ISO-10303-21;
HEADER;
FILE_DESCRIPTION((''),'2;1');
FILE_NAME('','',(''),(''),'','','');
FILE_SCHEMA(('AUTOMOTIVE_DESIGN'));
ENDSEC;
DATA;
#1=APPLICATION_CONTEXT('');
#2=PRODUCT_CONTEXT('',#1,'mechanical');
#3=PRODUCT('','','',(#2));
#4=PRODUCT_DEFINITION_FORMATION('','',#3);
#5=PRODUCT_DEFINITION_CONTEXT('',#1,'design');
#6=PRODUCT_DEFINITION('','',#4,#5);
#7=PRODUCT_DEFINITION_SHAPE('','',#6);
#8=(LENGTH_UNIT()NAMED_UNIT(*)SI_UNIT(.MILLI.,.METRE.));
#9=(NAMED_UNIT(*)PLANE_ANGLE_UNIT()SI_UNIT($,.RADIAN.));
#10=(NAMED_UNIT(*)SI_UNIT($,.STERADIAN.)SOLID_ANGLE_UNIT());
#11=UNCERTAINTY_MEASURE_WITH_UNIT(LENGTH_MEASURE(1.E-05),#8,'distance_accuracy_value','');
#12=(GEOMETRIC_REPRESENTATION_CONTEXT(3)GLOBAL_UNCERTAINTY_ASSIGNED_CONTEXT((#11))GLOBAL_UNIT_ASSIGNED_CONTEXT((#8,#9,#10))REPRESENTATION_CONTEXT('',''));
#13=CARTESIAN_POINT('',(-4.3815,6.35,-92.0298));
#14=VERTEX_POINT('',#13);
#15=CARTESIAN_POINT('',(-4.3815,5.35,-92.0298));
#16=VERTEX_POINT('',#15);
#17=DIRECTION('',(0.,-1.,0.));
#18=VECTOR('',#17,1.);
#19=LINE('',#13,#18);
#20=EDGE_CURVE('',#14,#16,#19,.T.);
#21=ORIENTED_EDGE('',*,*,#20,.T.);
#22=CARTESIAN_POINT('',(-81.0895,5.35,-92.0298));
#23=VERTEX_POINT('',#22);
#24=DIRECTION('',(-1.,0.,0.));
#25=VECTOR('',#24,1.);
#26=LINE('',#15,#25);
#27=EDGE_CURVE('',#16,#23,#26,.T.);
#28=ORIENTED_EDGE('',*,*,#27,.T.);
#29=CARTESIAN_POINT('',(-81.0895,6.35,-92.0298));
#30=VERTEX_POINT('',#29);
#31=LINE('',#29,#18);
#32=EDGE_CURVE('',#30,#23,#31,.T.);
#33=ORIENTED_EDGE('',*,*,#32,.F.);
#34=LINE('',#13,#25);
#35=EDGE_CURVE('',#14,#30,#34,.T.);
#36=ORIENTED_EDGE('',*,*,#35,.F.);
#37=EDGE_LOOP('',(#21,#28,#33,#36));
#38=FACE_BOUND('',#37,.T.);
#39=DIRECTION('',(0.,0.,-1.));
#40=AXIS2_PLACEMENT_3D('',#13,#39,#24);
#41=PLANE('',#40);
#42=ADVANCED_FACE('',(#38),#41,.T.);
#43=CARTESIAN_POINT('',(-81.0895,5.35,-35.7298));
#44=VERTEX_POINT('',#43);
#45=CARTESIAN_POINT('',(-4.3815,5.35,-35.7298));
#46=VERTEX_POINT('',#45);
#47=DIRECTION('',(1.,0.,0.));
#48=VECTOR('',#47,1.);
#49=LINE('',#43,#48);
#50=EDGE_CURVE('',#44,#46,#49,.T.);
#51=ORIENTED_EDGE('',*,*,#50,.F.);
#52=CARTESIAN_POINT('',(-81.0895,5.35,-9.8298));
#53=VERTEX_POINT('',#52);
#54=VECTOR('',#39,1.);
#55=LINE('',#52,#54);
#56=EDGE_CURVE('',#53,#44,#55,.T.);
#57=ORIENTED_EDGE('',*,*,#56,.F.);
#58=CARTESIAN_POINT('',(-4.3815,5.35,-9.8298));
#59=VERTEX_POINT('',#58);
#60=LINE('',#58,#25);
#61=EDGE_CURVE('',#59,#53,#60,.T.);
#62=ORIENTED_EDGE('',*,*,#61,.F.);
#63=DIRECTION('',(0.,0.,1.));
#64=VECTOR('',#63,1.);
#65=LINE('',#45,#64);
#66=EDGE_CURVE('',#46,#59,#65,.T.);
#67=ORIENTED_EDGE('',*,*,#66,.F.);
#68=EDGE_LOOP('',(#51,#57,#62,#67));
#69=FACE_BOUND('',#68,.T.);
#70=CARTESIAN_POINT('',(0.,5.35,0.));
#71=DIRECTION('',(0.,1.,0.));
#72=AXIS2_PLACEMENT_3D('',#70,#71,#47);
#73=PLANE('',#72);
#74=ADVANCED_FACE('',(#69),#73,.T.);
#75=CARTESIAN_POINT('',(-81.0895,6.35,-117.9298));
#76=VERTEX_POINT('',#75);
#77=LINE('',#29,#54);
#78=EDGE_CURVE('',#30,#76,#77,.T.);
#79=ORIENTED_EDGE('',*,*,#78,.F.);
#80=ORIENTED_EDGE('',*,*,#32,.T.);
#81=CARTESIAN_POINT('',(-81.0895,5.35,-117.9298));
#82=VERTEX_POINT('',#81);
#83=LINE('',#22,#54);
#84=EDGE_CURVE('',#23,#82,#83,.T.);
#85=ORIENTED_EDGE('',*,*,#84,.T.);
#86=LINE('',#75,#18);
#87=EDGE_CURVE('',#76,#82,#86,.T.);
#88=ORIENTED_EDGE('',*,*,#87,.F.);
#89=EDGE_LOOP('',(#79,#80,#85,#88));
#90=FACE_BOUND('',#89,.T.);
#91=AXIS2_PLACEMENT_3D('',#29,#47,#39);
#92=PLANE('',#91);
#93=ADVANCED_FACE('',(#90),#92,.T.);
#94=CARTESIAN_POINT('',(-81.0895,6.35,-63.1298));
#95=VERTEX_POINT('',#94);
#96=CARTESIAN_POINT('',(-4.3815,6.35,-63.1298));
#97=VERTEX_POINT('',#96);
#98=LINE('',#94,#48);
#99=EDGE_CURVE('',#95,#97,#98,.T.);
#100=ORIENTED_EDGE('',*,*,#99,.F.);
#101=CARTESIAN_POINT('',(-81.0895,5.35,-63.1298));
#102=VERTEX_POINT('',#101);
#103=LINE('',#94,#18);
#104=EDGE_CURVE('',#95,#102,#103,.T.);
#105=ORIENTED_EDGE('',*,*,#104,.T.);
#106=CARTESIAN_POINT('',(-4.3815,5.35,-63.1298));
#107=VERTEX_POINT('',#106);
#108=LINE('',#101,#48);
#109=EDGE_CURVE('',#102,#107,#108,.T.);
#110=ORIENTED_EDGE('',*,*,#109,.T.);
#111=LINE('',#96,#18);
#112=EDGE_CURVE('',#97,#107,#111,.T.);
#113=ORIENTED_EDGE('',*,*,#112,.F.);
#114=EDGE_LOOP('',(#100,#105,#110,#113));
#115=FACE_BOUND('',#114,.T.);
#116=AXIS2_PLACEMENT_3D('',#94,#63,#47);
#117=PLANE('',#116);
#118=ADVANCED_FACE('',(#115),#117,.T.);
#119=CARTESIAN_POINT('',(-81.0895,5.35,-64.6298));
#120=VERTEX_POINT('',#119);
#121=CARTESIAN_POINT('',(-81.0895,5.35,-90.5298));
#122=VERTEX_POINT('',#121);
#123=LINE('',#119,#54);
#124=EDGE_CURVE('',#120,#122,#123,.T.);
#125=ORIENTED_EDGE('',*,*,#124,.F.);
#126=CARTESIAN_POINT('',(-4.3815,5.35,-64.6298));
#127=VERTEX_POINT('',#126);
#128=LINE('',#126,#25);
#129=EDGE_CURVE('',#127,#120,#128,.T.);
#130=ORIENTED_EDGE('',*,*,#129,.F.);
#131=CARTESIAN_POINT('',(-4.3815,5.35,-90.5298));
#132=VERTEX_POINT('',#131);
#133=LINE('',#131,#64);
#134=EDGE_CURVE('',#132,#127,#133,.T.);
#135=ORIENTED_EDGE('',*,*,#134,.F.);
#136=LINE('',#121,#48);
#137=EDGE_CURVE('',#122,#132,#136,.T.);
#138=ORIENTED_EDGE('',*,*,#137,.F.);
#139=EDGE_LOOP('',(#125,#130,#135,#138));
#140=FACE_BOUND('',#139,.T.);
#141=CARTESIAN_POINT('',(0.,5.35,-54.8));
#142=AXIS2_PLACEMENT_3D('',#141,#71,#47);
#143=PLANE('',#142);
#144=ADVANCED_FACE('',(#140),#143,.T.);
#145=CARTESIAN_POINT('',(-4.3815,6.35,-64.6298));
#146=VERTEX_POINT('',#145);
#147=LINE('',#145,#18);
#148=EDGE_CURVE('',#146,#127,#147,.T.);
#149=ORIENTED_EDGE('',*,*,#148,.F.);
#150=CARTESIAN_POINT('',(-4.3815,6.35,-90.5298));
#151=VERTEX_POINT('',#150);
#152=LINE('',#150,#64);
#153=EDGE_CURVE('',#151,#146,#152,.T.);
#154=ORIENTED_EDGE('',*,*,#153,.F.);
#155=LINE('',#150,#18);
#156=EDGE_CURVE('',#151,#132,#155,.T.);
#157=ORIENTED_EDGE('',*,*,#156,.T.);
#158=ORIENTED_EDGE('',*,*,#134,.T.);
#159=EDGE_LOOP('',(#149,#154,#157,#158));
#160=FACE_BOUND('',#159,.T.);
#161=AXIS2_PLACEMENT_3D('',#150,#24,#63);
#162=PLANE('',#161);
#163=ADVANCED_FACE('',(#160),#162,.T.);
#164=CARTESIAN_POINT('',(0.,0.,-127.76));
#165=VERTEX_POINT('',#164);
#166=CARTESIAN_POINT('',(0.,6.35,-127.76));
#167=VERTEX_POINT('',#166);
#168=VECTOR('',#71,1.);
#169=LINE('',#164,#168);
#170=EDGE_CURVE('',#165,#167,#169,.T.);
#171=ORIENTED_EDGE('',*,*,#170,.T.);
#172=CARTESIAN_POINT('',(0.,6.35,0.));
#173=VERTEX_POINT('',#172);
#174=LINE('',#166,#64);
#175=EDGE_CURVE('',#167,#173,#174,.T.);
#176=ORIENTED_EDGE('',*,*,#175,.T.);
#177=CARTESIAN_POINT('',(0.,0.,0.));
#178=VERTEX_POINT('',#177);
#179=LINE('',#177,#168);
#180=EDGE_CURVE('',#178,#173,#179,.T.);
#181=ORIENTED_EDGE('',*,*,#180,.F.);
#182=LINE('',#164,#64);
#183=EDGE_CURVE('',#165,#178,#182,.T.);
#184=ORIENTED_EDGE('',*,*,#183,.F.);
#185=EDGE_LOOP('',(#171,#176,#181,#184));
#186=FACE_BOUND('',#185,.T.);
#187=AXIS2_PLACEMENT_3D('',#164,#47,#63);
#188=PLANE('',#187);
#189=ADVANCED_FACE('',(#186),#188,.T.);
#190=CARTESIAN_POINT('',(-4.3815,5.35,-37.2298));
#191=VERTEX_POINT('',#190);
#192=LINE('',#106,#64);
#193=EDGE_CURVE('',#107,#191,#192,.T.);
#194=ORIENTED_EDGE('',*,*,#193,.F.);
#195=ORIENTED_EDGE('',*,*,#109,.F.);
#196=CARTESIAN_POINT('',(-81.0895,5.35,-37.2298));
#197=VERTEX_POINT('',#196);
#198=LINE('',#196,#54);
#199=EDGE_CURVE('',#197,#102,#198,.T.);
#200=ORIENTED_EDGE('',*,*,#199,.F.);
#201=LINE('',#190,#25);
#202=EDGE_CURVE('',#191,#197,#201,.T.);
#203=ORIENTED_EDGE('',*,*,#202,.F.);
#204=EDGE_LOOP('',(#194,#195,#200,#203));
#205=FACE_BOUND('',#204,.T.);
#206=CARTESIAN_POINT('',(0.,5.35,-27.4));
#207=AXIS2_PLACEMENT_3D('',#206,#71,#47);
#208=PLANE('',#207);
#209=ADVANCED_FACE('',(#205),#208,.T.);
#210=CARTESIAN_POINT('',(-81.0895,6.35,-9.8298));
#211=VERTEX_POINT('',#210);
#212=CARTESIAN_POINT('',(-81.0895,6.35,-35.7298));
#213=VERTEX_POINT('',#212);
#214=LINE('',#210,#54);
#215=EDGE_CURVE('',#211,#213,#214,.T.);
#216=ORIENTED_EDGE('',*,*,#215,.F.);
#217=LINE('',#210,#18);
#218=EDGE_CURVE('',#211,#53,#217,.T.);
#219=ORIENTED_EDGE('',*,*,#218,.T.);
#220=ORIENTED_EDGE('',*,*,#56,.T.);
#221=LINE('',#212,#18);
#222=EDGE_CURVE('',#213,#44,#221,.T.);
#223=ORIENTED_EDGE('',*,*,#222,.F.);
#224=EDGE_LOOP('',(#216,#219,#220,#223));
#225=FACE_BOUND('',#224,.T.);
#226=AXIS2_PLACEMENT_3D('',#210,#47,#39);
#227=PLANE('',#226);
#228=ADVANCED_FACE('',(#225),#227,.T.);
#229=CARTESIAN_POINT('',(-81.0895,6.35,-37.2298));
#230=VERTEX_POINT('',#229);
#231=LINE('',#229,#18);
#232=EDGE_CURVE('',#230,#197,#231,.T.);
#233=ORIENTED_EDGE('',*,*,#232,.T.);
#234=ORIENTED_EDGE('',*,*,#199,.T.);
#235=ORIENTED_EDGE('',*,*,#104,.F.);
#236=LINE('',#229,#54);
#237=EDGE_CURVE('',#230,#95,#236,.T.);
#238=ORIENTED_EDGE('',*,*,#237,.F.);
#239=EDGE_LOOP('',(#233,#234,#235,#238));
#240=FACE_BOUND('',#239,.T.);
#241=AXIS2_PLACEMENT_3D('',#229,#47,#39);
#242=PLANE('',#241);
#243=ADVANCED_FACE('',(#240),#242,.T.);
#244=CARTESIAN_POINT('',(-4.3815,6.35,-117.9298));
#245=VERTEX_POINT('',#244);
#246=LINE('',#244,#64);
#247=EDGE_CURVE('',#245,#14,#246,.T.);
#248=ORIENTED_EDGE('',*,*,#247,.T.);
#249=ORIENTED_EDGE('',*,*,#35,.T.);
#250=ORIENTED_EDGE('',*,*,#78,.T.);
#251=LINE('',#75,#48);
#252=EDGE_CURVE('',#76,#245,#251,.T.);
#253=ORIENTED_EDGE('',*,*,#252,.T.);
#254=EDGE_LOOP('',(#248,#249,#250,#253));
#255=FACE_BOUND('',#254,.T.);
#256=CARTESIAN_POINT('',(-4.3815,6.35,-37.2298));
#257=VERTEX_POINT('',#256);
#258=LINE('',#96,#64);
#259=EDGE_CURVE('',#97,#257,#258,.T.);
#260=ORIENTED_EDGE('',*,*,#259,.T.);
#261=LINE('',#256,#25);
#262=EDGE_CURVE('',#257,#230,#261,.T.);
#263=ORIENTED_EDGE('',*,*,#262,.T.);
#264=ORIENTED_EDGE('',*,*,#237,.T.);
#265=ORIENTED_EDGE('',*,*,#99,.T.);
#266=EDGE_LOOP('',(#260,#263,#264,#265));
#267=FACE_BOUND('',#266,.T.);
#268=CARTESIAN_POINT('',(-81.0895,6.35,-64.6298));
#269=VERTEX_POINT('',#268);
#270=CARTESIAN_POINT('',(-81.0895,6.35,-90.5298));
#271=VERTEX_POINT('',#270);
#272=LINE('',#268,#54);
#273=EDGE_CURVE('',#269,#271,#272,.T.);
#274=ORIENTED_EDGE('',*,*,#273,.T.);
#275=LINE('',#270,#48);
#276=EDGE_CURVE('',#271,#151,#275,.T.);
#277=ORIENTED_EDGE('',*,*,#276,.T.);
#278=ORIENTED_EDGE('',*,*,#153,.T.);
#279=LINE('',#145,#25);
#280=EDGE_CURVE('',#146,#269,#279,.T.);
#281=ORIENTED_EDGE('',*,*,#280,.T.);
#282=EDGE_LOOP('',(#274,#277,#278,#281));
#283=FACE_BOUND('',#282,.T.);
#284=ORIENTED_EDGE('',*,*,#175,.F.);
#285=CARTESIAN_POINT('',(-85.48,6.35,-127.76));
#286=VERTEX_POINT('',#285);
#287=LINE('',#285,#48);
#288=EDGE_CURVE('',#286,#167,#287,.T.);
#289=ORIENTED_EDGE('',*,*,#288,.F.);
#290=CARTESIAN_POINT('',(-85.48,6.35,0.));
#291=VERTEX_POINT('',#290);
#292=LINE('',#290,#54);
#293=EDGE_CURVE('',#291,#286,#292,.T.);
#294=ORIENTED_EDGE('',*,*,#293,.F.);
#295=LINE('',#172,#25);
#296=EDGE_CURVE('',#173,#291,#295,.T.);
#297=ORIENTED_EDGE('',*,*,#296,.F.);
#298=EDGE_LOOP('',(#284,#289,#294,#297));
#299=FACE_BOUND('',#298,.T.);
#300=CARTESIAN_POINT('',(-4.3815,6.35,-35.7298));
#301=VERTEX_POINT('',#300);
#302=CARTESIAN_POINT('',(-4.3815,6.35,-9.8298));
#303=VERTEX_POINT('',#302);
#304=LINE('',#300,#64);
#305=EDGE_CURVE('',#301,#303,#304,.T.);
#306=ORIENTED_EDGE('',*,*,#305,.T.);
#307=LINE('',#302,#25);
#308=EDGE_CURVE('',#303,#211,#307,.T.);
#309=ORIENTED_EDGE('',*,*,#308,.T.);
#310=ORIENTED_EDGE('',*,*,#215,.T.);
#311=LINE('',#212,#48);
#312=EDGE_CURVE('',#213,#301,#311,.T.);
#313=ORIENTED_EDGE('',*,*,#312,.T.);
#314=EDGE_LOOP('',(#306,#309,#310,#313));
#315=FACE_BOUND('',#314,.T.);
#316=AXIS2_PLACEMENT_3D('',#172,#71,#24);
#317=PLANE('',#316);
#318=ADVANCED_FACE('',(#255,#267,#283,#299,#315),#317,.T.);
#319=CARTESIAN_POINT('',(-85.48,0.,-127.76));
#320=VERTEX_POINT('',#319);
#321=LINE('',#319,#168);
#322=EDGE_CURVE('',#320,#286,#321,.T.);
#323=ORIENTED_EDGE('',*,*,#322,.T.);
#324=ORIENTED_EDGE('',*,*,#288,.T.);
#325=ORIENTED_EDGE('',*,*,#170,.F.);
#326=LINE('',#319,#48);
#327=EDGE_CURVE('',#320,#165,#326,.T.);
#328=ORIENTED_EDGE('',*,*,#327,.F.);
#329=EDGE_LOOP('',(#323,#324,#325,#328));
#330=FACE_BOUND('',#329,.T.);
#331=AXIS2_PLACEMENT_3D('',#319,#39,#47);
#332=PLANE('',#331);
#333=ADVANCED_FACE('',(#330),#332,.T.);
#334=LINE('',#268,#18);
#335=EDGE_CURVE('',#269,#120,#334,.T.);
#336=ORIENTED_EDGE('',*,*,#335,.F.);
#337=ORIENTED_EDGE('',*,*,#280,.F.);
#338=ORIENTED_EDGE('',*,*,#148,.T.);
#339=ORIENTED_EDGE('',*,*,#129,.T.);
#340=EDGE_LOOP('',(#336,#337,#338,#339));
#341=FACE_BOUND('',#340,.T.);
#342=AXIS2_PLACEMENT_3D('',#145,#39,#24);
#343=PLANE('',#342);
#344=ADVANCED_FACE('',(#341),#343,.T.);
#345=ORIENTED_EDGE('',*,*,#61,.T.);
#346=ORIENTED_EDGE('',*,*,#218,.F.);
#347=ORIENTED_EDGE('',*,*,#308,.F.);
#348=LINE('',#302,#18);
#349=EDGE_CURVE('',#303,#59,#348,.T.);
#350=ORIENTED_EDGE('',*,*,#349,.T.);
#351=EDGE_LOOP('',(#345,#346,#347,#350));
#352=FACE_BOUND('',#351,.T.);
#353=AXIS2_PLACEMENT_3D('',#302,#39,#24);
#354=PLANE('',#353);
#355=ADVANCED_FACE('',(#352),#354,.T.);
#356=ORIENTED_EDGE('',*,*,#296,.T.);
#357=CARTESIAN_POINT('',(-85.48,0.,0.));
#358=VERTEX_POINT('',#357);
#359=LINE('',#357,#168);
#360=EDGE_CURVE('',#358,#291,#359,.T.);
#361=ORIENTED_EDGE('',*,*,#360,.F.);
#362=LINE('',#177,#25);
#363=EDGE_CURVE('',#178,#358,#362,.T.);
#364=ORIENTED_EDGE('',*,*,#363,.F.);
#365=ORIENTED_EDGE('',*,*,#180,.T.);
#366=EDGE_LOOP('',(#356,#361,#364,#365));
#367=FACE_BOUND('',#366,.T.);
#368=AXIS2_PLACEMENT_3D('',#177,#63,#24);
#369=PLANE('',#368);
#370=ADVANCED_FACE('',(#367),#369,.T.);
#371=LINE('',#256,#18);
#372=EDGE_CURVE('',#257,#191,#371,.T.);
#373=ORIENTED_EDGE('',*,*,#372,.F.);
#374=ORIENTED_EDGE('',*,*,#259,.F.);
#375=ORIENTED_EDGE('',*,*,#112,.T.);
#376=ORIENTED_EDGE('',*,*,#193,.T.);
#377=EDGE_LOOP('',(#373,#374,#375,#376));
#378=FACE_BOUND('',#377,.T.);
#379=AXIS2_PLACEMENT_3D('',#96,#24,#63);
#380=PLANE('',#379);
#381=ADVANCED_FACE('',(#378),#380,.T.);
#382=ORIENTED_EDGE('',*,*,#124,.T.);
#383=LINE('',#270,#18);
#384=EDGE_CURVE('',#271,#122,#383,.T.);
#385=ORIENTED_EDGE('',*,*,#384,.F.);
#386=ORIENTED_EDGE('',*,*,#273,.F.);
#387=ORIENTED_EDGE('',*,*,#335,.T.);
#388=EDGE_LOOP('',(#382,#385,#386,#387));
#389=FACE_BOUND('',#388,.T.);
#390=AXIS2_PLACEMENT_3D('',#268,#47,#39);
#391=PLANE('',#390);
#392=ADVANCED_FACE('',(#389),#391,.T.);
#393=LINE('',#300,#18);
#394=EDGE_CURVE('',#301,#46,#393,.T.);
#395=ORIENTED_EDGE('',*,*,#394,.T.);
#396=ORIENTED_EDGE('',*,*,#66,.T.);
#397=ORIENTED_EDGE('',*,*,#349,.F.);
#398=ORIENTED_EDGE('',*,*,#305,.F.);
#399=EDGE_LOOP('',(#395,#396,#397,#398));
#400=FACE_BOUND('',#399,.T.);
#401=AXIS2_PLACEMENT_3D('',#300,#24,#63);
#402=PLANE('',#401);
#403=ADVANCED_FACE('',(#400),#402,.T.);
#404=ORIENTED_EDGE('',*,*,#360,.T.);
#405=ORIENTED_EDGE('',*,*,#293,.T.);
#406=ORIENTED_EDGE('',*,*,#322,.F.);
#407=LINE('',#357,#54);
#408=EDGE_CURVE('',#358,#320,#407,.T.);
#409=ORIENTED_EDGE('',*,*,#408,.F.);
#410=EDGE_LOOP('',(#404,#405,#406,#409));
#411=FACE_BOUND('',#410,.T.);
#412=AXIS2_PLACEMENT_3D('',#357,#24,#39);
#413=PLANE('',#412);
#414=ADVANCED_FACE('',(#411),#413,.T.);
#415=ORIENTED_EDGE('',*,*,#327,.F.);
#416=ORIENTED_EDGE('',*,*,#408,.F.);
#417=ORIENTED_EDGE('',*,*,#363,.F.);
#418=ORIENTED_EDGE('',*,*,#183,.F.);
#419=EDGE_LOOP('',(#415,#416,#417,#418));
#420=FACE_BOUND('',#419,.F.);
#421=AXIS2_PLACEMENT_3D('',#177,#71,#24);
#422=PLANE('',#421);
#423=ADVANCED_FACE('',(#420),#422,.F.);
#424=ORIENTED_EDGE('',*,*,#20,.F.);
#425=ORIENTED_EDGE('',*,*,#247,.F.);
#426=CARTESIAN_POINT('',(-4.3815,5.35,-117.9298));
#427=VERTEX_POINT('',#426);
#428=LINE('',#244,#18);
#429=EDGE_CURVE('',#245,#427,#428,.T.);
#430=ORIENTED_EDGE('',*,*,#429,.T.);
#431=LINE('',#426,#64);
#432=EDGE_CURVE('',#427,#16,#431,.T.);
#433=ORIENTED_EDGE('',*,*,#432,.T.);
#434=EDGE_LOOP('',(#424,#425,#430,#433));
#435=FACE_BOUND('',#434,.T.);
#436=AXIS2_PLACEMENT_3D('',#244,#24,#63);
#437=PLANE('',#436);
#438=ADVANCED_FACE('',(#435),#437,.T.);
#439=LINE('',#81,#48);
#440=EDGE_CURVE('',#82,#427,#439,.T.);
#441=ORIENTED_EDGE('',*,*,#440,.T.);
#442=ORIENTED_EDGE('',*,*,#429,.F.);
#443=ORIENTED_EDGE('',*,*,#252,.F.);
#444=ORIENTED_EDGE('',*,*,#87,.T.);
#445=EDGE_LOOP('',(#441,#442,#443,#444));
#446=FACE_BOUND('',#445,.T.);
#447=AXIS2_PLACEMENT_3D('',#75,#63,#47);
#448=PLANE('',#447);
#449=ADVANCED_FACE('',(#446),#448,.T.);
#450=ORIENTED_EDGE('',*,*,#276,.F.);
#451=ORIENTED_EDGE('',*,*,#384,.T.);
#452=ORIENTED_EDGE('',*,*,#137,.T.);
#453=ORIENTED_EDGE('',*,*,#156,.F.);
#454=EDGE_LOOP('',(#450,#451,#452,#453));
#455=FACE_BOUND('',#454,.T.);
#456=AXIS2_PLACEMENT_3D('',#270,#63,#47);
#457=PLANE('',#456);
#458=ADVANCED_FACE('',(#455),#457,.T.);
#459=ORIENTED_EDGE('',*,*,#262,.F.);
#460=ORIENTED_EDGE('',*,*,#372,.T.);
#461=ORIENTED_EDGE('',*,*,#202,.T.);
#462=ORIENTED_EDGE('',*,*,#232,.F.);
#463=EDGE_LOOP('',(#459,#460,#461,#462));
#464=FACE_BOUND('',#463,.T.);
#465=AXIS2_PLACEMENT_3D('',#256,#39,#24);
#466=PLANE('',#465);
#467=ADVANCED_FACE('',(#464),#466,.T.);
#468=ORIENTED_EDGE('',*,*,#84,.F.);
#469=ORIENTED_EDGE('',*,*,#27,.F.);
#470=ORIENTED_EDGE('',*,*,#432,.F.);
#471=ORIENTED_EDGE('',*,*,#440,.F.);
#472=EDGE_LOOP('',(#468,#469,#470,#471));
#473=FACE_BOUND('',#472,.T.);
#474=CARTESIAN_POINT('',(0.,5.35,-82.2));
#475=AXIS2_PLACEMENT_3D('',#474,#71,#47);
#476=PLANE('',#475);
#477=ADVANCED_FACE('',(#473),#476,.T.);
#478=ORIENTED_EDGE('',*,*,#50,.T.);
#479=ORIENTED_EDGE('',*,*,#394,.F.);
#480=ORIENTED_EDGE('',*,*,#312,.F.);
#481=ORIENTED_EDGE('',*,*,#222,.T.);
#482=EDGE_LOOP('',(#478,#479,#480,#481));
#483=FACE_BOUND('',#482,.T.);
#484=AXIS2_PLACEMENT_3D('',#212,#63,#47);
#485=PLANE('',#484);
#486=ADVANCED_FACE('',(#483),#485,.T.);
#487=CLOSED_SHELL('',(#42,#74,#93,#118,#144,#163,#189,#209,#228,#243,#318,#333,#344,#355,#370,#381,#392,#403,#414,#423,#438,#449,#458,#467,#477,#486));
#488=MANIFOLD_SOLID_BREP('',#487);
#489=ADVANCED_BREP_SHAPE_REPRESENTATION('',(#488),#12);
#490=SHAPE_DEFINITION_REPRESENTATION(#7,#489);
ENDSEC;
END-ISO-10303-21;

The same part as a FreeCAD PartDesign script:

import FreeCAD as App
import Part
import Sketcher

V = App.Vector
Q = App.Units.Quantity

doc = App.newDocument("Part")
params = doc.addObject("Spreadsheet::Sheet", "Params")
for row, (alias, value) in enumerate([
    ("sketch1_width", "85.48 mm"),
    ("sketch1_height", "127.76 mm"),
    ("pad1_length", "6.35 mm"),
    ("sketch2_height", "25.9 mm"),
    ("pocket1_length", "1 mm"),
    ("linearpattern_pitch", "27.4 mm"),
], start=1):
    params.set(f"A{row}", alias)
    params.set(f"B{row}", "=" + value)
    params.setAlias(f"B{row}", alias)

body = doc.addObject("PartDesign::Body", "Body")

# Sketch on XZ plane
sketch1 = doc.addObject("Sketcher::SketchObject", "Sketch")
body.addObject(sketch1)
sketch1.AttachmentSupport = (doc.XZ_Plane, [""])
sketch1.MapMode = "FlatFace"
sketch1.addGeometry(Part.LineSegment(V(-85.48, 0, 0), V(0, 0, 0)), False)
sketch1.addGeometry(Part.LineSegment(V(0, 0, 0), V(0, -127.76, 0)), False)
sketch1.addGeometry(Part.LineSegment(V(0, -127.76, 0), V(-85.48, -127.76, 0)), False)
sketch1.addGeometry(Part.LineSegment(V(-85.48, -127.76, 0), V(-85.48, 0, 0)), False)
sketch1.addConstraint(Sketcher.Constraint("Coincident", 0, 2, 1, 1))
sketch1.addConstraint(Sketcher.Constraint("Coincident", 1, 2, 2, 1))
sketch1.addConstraint(Sketcher.Constraint("Coincident", 2, 2, 3, 1))
sketch1.addConstraint(Sketcher.Constraint("Coincident", 3, 2, 0, 1))
sketch1.addConstraint(Sketcher.Constraint("Horizontal", 0))
sketch1.addConstraint(Sketcher.Constraint("Vertical", 1))
sketch1.addConstraint(Sketcher.Constraint("Horizontal", 2))
sketch1.addConstraint(Sketcher.Constraint("Vertical", 3))
sketch1.addConstraint(Sketcher.Constraint("Coincident", 0, 2, -1, 1))
sketch1.addConstraint(Sketcher.Constraint("DistanceX", 0, 1, 0, 2, Q("85.48 mm")))
sketch1.addConstraint(Sketcher.Constraint("DistanceY", 1, 2, 1, 1, Q("127.76 mm")))
sketch1.setExpression("Constraints[9]", "Params.sketch1_width")
sketch1.setExpression("Constraints[10]", "Params.sketch1_height")
pad1 = doc.addObject("PartDesign::Pad", "Pad")
body.addObject(pad1)
pad1.Profile = sketch1
pad1.setExpression("Length", "Params.pad1_length")
pad1.Reversed = True

# Sketch on XZ plane
sketch2 = doc.addObject("Sketcher::SketchObject", "Sketch001")
body.addObject(sketch2)
sketch2.AttachmentSupport = (doc.XZ_Plane, [""])
sketch2.MapMode = "FlatFace"
sketch2.AttachmentOffset = App.Placement(V(0, 0, -6.35), App.Rotation())
sketch2.addGeometry(Part.LineSegment(V(-81.0895, -9.8298, 0), V(-4.3815, -9.8298, 0)), False)
sketch2.addGeometry(Part.LineSegment(V(-4.3815, -9.8298, 0), V(-4.3815, -35.7298, 0)), False)
sketch2.addGeometry(Part.LineSegment(V(-4.3815, -35.7298, 0), V(-81.0895, -35.7298, 0)), False)
sketch2.addGeometry(Part.LineSegment(V(-81.0895, -35.7298, 0), V(-81.0895, -9.8298, 0)), False)
sketch2.addConstraint(Sketcher.Constraint("Coincident", 0, 2, 1, 1))
sketch2.addConstraint(Sketcher.Constraint("Coincident", 1, 2, 2, 1))
sketch2.addConstraint(Sketcher.Constraint("Coincident", 2, 2, 3, 1))
sketch2.addConstraint(Sketcher.Constraint("Coincident", 3, 2, 0, 1))
sketch2.addConstraint(Sketcher.Constraint("Horizontal", 0))
sketch2.addConstraint(Sketcher.Constraint("Vertical", 1))
sketch2.addConstraint(Sketcher.Constraint("Horizontal", 2))
sketch2.addConstraint(Sketcher.Constraint("Vertical", 3))
sketch2.addConstraint(Sketcher.Constraint("DistanceY", 1, 2, 1, 1, Q("25.9 mm")))
sketch2.addConstraint(Sketcher.Constraint("DistanceX", 0, 1, 0, 2, Q("76.708 mm")))
sketch2.addConstraint(Sketcher.Constraint("DistanceX", 0, 2, -1, 1, Q("4.3815 mm")))
sketch2.addConstraint(Sketcher.Constraint("DistanceY", 0, 2, -1, 1, Q("9.8298 mm")))
sketch2.setExpression("Constraints[8]", "Params.sketch2_height")
pocket1 = doc.addObject("PartDesign::Pocket", "Pocket")
body.addObject(pocket1)
pocket1.Profile = sketch2
pocket1.setExpression("Length", "Params.pocket1_length")
pocket1.Reversed = True
doc.recompute()

linearpattern = doc.addObject("PartDesign::LinearPattern", "LinearPattern")
body.addObject(linearpattern)
linearpattern.Originals = [pocket1]
linearpattern.Direction = (doc.Z_Axis, [""])
linearpattern.Mode = "offset"
linearpattern.setExpression("Offset", "Params.linearpattern_pitch")
linearpattern.Occurrences = 4
linearpattern.Reversed = True
body.Tip = linearpattern

doc.recompute()
